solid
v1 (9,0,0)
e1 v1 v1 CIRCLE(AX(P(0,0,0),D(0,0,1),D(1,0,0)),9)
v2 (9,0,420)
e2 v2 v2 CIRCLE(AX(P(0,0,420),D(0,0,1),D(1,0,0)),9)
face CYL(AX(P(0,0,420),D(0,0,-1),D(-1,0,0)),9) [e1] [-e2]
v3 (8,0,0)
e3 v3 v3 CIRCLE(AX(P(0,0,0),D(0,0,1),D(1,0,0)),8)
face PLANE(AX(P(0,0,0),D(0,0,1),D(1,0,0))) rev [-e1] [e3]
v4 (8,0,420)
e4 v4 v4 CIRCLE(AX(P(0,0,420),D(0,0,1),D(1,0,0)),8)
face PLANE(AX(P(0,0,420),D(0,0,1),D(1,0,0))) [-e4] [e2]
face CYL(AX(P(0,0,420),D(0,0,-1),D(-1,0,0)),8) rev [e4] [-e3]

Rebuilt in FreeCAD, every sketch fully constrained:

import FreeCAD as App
import Part
import Sketcher
from FreeCAD import Vector

doc = App.newDocument("Part")
body = doc.addObject("PartDesign::Body", "Body")

# Sketch on XY plane
sketch1 = body.newObject("Sketcher::SketchObject", "Sketch")
sketch1.AttachmentSupport = (doc.getObject("XY_Plane"), [""])
sketch1.MapMode = "FlatFace"
sketch1.addGeometry(Part.Circle(Vector(0, 0, 0), Vector(0, 0, 1), 9), False)
sketch1.addGeometry(Part.Circle(Vector(0, 0, 0), Vector(0, 0, 1), 8), False)
sketch1.addConstraint(Sketcher.Constraint("Coincident", 0, 3, -1, 1))
sketch1.addConstraint(Sketcher.Constraint("Coincident", 1, 3, -1, 1))
sketch1.addConstraint(Sketcher.Constraint("Diameter", 0, 18.0))
sketch1.addConstraint(Sketcher.Constraint("Diameter", 1, 16.0))
pad1 = body.newObject("PartDesign::Pad", "Pad")
pad1.Profile = sketch1
pad1.Length = 420

doc.recompute()
